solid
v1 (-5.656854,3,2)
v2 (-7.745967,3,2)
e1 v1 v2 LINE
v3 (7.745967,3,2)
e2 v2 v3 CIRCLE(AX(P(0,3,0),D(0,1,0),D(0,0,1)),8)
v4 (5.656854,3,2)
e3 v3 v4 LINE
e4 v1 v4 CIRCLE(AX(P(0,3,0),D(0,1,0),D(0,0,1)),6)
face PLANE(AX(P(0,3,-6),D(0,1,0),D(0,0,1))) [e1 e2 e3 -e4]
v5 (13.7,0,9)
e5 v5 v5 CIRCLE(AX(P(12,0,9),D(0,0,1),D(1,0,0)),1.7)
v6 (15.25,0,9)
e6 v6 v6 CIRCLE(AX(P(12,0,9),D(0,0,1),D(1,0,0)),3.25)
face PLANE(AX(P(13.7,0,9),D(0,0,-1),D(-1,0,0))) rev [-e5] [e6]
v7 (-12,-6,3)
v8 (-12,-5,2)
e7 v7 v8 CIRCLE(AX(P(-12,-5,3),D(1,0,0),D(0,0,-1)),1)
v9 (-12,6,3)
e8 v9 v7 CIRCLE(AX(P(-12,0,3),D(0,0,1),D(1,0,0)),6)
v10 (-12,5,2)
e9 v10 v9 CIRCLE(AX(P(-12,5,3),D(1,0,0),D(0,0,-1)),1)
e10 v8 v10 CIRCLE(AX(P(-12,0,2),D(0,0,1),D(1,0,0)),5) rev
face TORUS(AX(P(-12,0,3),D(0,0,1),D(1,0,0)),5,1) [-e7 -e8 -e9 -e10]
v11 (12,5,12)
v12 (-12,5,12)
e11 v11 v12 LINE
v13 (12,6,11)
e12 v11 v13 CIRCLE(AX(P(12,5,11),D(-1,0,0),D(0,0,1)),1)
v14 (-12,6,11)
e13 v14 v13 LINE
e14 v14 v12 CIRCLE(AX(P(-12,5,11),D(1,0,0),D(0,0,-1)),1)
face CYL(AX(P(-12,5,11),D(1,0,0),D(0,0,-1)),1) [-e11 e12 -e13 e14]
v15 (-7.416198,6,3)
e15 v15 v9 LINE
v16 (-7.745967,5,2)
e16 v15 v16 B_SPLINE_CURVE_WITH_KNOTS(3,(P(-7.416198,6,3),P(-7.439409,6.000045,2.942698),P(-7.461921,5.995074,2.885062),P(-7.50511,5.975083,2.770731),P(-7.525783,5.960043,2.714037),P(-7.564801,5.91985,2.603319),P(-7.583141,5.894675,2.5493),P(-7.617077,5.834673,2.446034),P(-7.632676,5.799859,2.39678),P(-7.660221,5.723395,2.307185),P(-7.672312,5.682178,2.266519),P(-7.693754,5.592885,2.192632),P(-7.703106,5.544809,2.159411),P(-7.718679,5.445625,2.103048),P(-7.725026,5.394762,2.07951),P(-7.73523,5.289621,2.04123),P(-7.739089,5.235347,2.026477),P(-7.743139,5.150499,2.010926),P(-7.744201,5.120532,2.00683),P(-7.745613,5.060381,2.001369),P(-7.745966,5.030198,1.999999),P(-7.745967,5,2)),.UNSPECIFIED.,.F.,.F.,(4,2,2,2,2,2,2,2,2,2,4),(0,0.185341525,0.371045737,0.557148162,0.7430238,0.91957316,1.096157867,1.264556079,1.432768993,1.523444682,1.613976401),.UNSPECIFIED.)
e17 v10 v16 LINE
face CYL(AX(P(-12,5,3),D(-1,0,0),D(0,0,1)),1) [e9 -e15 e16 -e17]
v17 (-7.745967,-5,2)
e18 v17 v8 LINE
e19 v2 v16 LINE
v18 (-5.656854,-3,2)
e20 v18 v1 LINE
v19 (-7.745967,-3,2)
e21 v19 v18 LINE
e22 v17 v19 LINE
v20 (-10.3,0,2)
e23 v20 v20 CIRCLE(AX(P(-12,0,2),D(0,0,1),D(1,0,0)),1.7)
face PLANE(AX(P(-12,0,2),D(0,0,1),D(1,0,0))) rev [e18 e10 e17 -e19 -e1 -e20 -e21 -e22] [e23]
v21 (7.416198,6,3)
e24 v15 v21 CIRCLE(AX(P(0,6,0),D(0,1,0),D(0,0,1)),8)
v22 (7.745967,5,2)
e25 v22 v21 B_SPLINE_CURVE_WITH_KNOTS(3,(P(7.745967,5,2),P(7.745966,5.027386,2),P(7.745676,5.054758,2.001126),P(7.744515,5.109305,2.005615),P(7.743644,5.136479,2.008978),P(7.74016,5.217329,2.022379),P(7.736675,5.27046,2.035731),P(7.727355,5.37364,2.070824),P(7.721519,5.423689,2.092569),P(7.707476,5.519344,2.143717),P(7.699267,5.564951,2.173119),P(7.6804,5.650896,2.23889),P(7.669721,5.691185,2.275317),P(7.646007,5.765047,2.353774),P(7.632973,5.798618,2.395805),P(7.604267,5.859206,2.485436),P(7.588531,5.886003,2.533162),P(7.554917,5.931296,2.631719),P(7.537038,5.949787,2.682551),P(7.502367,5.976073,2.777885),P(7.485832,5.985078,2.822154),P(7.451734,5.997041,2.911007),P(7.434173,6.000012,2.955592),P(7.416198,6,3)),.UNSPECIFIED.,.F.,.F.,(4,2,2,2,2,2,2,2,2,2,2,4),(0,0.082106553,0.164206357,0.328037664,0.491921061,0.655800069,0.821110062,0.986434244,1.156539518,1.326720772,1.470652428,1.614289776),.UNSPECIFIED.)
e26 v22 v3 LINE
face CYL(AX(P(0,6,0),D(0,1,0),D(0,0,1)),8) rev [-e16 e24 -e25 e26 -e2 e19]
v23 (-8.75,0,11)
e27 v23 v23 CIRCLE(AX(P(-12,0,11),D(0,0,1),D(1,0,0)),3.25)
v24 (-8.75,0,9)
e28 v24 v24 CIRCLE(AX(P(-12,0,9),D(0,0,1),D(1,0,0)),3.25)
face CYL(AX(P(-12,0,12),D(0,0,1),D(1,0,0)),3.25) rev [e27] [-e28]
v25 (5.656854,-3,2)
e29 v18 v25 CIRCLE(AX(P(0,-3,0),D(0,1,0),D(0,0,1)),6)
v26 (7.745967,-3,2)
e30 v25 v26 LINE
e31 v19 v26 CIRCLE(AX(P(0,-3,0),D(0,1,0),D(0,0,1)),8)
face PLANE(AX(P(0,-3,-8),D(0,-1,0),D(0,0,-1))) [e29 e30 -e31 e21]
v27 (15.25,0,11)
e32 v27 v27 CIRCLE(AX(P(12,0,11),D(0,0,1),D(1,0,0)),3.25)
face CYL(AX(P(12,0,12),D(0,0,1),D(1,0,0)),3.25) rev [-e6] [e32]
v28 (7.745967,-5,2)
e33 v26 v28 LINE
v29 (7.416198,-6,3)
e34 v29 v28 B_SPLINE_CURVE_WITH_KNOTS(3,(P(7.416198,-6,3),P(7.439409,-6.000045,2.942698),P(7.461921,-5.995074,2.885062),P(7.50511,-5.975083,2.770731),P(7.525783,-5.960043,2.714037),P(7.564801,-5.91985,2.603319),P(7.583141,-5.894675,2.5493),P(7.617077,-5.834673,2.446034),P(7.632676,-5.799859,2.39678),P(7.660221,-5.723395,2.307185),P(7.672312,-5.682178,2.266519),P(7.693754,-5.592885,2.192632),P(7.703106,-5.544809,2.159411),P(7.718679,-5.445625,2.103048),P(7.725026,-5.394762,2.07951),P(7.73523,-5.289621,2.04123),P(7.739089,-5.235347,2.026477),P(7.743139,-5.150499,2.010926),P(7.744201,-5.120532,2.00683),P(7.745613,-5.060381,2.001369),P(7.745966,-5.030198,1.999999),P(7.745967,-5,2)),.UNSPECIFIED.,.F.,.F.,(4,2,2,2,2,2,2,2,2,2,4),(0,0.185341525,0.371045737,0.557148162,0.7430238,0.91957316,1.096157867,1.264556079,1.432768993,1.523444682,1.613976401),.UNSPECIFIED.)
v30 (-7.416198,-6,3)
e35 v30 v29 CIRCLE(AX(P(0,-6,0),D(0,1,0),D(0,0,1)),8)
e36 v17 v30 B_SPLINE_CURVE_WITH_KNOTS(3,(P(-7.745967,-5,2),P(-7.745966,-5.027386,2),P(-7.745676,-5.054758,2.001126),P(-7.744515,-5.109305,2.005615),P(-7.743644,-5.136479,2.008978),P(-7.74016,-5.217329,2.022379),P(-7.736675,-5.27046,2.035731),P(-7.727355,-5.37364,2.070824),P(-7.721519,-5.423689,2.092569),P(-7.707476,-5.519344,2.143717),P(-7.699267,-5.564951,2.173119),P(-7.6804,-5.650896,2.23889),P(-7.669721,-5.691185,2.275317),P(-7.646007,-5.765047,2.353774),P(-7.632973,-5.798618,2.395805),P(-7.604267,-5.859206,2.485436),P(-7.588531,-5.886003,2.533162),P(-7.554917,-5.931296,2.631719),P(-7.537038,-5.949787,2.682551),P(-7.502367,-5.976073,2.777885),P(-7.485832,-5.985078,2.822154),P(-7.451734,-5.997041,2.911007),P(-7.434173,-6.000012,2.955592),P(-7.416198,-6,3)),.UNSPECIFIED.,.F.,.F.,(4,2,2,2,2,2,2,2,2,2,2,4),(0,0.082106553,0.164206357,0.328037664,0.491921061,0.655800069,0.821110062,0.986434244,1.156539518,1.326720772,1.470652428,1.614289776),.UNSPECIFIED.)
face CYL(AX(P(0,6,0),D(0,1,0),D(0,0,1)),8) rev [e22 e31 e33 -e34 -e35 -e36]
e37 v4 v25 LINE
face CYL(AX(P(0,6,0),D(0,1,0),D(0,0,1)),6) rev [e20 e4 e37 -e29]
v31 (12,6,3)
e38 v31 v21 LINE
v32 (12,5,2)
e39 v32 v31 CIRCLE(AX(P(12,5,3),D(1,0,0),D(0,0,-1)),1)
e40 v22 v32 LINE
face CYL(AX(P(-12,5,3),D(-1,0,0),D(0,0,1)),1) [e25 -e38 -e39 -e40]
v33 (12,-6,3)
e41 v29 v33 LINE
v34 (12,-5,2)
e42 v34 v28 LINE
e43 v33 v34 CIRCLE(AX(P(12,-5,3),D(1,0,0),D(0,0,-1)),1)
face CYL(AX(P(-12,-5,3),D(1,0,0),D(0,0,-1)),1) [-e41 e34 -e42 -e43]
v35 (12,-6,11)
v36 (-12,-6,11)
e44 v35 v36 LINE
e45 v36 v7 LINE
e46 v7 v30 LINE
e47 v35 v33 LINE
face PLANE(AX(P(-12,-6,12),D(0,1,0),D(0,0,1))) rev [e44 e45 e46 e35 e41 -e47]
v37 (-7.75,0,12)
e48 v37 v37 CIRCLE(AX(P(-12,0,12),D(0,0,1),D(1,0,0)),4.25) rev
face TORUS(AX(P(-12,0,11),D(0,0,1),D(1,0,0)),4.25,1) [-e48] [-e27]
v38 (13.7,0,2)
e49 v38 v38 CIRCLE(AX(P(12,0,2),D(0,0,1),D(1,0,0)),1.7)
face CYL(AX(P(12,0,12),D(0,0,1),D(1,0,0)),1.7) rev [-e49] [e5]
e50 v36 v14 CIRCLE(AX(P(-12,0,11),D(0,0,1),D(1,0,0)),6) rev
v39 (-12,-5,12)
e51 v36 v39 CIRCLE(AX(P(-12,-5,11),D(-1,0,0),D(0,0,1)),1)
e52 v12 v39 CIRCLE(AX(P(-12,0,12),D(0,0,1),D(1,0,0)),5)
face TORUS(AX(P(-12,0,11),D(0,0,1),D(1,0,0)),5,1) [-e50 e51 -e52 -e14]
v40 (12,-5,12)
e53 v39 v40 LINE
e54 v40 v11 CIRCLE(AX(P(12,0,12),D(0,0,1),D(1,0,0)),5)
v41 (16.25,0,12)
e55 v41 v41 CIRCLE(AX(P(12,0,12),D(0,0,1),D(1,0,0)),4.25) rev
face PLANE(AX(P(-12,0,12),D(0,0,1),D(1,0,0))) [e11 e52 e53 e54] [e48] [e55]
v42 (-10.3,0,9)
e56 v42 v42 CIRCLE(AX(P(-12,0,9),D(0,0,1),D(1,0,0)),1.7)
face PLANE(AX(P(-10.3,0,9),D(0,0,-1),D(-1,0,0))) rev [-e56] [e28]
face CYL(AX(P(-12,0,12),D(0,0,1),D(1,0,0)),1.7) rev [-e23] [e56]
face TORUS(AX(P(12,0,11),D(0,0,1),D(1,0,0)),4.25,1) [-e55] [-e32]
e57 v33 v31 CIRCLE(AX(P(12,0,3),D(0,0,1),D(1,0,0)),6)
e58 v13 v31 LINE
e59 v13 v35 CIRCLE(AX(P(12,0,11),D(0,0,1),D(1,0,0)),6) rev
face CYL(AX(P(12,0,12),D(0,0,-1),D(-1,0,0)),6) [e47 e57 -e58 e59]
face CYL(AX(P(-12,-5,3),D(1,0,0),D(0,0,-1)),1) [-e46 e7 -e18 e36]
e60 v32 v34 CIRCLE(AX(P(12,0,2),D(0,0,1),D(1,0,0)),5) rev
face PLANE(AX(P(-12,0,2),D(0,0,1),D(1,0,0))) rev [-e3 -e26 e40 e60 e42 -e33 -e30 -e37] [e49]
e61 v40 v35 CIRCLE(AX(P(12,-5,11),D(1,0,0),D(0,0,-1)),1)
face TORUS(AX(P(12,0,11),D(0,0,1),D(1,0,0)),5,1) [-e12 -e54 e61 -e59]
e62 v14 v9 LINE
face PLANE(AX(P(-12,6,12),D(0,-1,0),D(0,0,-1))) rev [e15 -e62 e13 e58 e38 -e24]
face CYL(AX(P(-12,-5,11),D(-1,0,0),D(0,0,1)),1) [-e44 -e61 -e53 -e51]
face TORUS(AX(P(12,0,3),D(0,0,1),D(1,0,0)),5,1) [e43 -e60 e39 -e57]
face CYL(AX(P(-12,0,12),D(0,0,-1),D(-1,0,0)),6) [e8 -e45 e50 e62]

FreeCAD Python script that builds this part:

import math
import FreeCAD as App
import Part
import Sketcher

V = App.Vector
Q = App.Units.Quantity


def edges_at(feature, points):
    """Names of the edges that pass closest to the given points."""
    edges = feature.Shape.Edges
    near = lambda p: min(range(len(edges)), key=lambda i: edges[i].distToShape(Part.Vertex(*p))[0])
    return sorted({f"Edge{near(p) + 1}" for p in points})


def add_polygon(sketch, points):
    """Adds a closed chain of lines whose ends are joined by coincident constraints."""
    first, n = sketch.GeometryCount, len(points)
    for a, b in zip(points, points[1:] + points[:1]):
        sketch.addGeometry(Part.LineSegment(App.Vector(*a, 0), App.Vector(*b, 0)), False)
    for i in range(n):
        sketch.addConstraint(Sketcher.Constraint("Coincident", first + i, 2, first + (i + 1) % n, 1))

doc = App.newDocument("Part")
body = doc.addObject("PartDesign::Body", "Body")

sketch1 = doc.addObject("Sketcher::SketchObject", "Sketch")
body.addObject(sketch1)
sketch1.AttachmentSupport = (doc.XY_Plane, [""])
sketch1.MapMode = "FlatFace"
sketch1.AttachmentOffset = App.Placement(V(0, 0, 2), App.Rotation())
sketch1.addGeometry([
    Part.LineSegment(V(12, 6, 0), V(-12, 6, 0)),
    Part.ArcOfCircle(Part.Circle(V(-12, 0, 0), V(0, 0, 1), 6), math.radians(90), math.radians(270)),
    Part.LineSegment(V(-12, -6, 0), V(12, -6, 0)),
    Part.ArcOfCircle(Part.Circle(V(12, 0, 0), V(0, 0, 1), 6), math.radians(-90), math.radians(90)),
], False)
sketch1.addConstraint([
    Sketcher.Constraint("Tangent", 0, 2, 1, 1),
    Sketcher.Constraint("Tangent", 1, 2, 2, 1),
    Sketcher.Constraint("Tangent", 2, 2, 3, 1),
    Sketcher.Constraint("Tangent", 3, 2, 0, 1),
    Sketcher.Constraint("Horizontal", 0),
    Sketcher.Constraint("Horizontal", 2),
    Sketcher.Constraint("Symmetric", 1, 3, 3, 3, -1, 1),
    Sketcher.Constraint("Radius", 1, Q("6 mm")),
    Sketcher.Constraint("DistanceX", 0, 2, 0, 1, Q("24 mm")),
])
pad1 = doc.addObject("PartDesign::Pad", "Pad")
body.addObject(pad1)
pad1.Profile = sketch1
pad1.Length = 10

sketch2 = doc.addObject("Sketcher::SketchObject", "Sketch001")
body.addObject(sketch2)
sketch2.AttachmentSupport = (doc.XY_Plane, [""])
sketch2.MapMode = "FlatFace"
sketch2.AttachmentOffset = App.Placement(V(0, 0, 12), App.Rotation())
sketch2.addGeometry([
    Part.Circle(V(-12, 0, 0), V(0, 0, 1), 1.7),
    Part.Circle(V(12, 0, 0), V(0, 0, 1), 1.7),
], False)
sketch2.addConstraint([
    Sketcher.Constraint("Equal", 0, 1),
    Sketcher.Constraint("Symmetric", 0, 3, 1, 3, -1, 1),
    Sketcher.Constraint("PointOnObject", 0, 3, -1),
    Sketcher.Constraint("Diameter", 0, Q("3.4 mm")),
    Sketcher.Constraint("DistanceX", 0, 3, -1, 1, Q("12 mm")),
])
doc.recompute()
hole = doc.addObject("PartDesign::Hole", "Hole")
body.addObject(hole)
hole.Profile = sketch2
hole.ThreadType = "None"
hole.Diameter = 3.4
hole.DepthType = "ThroughAll"
hole.HoleCutType = "Counterbore"
hole.HoleCutDiameter = 6.5
hole.HoleCutDepth = 3
doc.recompute()

fillet = doc.addObject("PartDesign::Fillet", "Fillet")
body.addObject(fillet)
fillet.Base = (hole, edges_at(hole, [
    (18, 0, 12),
    (0, 6, 12),
    (8.75, 0, 12),
    (-15.25, 0, 12),
    (-18, 0, 12),
    (0, 6, 2),
    (18, 0, 2),
    (0, -6, 2),
    (-18, 0, 2),
    (0, -6, 12),
]))
fillet.Radius = 1

sketch3 = doc.addObject("Sketcher::SketchObject", "Sketch002")
body.addObject(sketch3)
sketch3.AttachmentSupport = (doc.YZ_Plane, [""])
sketch3.MapMode = "FlatFace"
add_polygon(sketch3, [(6, 0), (-6, 0), (-6, -8), (-3, -8), (-3, -6), (3, -6), (3, -8), (6, -8)])
sketch3.addConstraint([
    Sketcher.Constraint("Horizontal", 0),
    Sketcher.Constraint("Vertical", 1),
    Sketcher.Constraint("Horizontal", 2),
    Sketcher.Constraint("Vertical", 3),
    Sketcher.Constraint("Horizontal", 4),
    Sketcher.Constraint("Vertical", 5),
    Sketcher.Constraint("Horizontal", 6),
    Sketcher.Constraint("Vertical", 7),
    Sketcher.Constraint("Symmetric", 0, 2, 7, 2, -1, 1),
    Sketcher.Constraint("Symmetric", 2, 2, 5, 2, -2),
    Sketcher.Constraint("DistanceX", 0, 2, 0, 1, Q("12 mm")),
    Sketcher.Constraint("DistanceX", 2, 1, 2, 2, Q("3 mm")),
    Sketcher.Constraint("DistanceY", 1, 2, 1, 1, Q("8 mm")),
    Sketcher.Constraint("DistanceY", 3, 1, 3, 2, Q("2 mm")),
])
groove = doc.addObject("PartDesign::Groove", "Groove")
body.addObject(groove)
groove.Profile = sketch3
groove.ReferenceAxis = (sketch3, ["H_Axis"])
groove.Angle = 360

doc.recompute()
